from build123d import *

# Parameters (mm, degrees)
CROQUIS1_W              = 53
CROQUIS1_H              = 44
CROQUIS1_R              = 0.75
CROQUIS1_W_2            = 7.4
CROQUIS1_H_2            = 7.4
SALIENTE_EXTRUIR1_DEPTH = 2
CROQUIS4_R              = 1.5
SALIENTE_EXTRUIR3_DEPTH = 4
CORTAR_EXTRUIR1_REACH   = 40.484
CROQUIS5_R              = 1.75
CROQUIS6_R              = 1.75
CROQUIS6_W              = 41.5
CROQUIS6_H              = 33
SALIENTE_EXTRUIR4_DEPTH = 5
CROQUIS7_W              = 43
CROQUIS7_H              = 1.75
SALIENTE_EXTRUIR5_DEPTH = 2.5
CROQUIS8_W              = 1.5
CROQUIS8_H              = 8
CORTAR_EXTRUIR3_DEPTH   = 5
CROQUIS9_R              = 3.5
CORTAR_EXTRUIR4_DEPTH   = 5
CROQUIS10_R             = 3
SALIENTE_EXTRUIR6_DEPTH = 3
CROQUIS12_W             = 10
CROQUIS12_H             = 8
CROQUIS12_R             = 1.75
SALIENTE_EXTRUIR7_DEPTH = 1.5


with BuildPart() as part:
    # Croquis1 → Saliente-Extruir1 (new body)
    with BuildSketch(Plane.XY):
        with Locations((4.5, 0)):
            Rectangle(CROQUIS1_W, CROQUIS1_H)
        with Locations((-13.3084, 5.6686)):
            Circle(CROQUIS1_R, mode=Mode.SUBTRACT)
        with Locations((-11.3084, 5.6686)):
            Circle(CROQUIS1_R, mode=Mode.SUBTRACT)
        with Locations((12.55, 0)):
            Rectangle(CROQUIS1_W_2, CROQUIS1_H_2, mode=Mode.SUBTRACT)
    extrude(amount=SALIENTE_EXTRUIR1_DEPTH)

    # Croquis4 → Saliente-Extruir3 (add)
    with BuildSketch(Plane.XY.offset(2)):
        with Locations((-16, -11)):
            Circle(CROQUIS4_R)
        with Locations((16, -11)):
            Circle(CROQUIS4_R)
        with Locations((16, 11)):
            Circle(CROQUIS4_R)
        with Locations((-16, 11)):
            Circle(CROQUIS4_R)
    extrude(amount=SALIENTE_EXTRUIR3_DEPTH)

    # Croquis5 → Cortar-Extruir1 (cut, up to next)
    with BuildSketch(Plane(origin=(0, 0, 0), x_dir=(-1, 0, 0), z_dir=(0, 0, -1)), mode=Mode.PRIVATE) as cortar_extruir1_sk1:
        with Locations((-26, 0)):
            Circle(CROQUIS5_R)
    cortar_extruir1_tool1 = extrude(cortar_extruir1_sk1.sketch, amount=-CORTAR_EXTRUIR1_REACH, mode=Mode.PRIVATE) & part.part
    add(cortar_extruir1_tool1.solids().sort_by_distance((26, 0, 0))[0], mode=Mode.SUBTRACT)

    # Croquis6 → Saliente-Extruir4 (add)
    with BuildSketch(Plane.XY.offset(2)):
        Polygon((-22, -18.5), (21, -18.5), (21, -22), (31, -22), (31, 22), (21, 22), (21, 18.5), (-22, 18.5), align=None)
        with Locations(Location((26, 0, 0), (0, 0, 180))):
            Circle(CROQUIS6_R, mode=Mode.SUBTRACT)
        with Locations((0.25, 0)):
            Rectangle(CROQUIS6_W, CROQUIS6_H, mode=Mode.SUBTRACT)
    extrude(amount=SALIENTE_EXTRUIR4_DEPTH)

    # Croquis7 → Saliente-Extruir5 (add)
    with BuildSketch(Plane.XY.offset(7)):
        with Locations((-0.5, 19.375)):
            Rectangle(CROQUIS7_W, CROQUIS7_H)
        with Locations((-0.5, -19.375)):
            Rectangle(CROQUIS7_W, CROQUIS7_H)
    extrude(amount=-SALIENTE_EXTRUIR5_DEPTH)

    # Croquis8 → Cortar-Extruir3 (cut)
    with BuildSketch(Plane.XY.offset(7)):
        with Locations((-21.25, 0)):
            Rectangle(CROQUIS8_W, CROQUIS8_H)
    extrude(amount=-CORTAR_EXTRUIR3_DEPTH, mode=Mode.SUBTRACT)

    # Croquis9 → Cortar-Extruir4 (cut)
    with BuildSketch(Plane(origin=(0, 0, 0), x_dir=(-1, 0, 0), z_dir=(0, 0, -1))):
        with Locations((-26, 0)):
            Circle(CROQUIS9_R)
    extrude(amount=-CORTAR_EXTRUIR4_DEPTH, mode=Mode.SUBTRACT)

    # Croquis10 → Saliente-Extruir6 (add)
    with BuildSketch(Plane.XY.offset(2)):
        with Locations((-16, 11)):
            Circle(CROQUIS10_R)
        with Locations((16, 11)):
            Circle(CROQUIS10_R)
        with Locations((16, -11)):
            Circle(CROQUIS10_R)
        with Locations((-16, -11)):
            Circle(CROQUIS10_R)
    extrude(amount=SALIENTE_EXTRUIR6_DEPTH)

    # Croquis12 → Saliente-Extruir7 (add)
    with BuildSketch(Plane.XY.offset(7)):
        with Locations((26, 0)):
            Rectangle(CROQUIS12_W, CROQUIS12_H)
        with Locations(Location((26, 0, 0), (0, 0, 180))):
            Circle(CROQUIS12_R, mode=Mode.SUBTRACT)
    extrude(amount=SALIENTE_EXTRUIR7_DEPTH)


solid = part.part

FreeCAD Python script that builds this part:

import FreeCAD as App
import Part
import Sketcher

V = App.Vector

doc = App.newDocument("Part")
params = doc.addObject("Spreadsheet::Sheet", "Params")
for row, (alias, value) in enumerate([
    ("sketch1_diameter", "1.5 mm"),
    ("sketch1_width", "53 mm"),
    ("sketch1_height", "44 mm"),
    ("sketch1_width2", "7.4 mm"),
    ("pad1_length", "2 mm"),
    ("sketch2_diameter", "3 mm"),
    ("pad2_length", "4 mm"),
    ("sketch3_diameter", "3.5 mm"),
    ("sketch4_diameter", "3.5 mm"),
    ("sketch4_width", "43 mm"),
    ("sketch4_width2", "10 mm"),
    ("sketch4_height", "44 mm"),
    ("sketch4_height2", "37 mm"),
    ("pad3_length", "5 mm"),
    ("sketch5_width", "43 mm"),
    ("sketch5_height", "1.75 mm"),
    ("pad4_length", "2.5 mm"),
    ("sketch6_height", "8 mm"),
    ("sketch6_width", "1.5 mm"),
    ("pocket2_length", "5 mm"),
    ("sketch7_diameter", "7 mm"),
    ("pocket3_length", "5 mm"),
    ("sketch8_diameter", "6 mm"),
    ("pad5_length", "3 mm"),
    ("sketch9_diameter", "3.5 mm"),
    ("sketch9_width", "10 mm"),
    ("sketch9_height", "8 mm"),
    ("pad6_length", "1.5 mm"),
], start=1):
    params.set(f"A{row}", alias)
    params.set(f"B{row}", "=" + value)
    params.setAlias(f"B{row}", alias)

body = doc.addObject("PartDesign::Body", "Body")

sketch1 = body.newObject("Sketcher::SketchObject", "Sketch")
sketch1.AttachmentSupport = (doc.getObject("XY_Plane"), [""])
sketch1.MapMode = "FlatFace"
sketch1.addGeometry(Part.LineSegment(V(-22, 22, 0), V(-22, -22, 0)), False)
sketch1.addGeometry(Part.LineSegment(V(-22, -22, 0), V(31, -22, 0)), False)
sketch1.addGeometry(Part.LineSegment(V(31, -22, 0), V(31, 22, 0)), False)
sketch1.addGeometry(Part.LineSegment(V(31, 22, 0), V(-22, 22, 0)), False)
sketch1.addGeometry(Part.LineSegment(V(16.2, -3.7, 0), V(8.8, -3.7, 0)), False)
sketch1.addGeometry(Part.LineSegment(V(8.8, -3.7, 0), V(8.8, 3.7, 0)), False)
sketch1.addGeometry(Part.LineSegment(V(8.8, 3.7, 0), V(16.2, 3.7, 0)), False)
sketch1.addGeometry(Part.LineSegment(V(16.2, 3.7, 0), V(16.2, -3.7, 0)), False)
sketch1.addGeometry(Part.Circle(V(-13.3, 5.7, 0), V(0, 0, 1), 0.8), False)
sketch1.addGeometry(Part.Circle(V(-11.3, 5.7, 0), V(0, 0, 1), 0.8), False)
sketch1.addConstraint(Sketcher.Constraint("Coincident", 0, 2, 1, 1))
sketch1.addConstraint(Sketcher.Constraint("Coincident", 1, 2, 2, 1))
sketch1.addConstraint(Sketcher.Constraint("Coincident", 2, 2, 3, 1))
sketch1.addConstraint(Sketcher.Constraint("Coincident", 3, 2, 0, 1))
sketch1.addConstraint(Sketcher.Constraint("Coincident", 4, 2, 5, 1))
sketch1.addConstraint(Sketcher.Constraint("Coincident", 5, 2, 6, 1))
sketch1.addConstraint(Sketcher.Constraint("Coincident", 6, 2, 7, 1))
sketch1.addConstraint(Sketcher.Constraint("Coincident", 7, 2, 4, 1))
sketch1.addConstraint(Sketcher.Constraint("Vertical", 0))
sketch1.addConstraint(Sketcher.Constraint("Horizontal", 1))
sketch1.addConstraint(Sketcher.Constraint("Vertical", 2))
sketch1.addConstraint(Sketcher.Constraint("Horizontal", 3))
sketch1.addConstraint(Sketcher.Constraint("Horizontal", 4))
sketch1.addConstraint(Sketcher.Constraint("Vertical", 5))
sketch1.addConstraint(Sketcher.Constraint("Horizontal", 6))
sketch1.addConstraint(Sketcher.Constraint("Vertical", 7))
sketch1.addConstraint(Sketcher.Constraint("Equal", 8, 9))
sketch1.addConstraint(Sketcher.Constraint("Horizontal", 8, 3, 9, 3))
sketch1.addConstraint(Sketcher.Constraint("Equal", 6, 5))
sketch1.addConstraint(Sketcher.Constraint("Diameter", 8, 1.5))
sketch1.addConstraint(Sketcher.Constraint("DistanceX", 1, 1, 1, 2, 53.0))
sketch1.addConstraint(Sketcher.Constraint("DistanceY", 0, 2, 0, 1, 44.0))
sketch1.addConstraint(Sketcher.Constraint("DistanceX", 4, 2, 4, 1, 7.4))
sketch1.addConstraint(Sketcher.Constraint("DistanceX", 0, 2, -1, 1, 22.0))
sketch1.addConstraint(Sketcher.Constraint("DistanceY", 0, 2, -1, 1, 22.0))
sketch1.addConstraint(Sketcher.Constraint("DistanceX", 8, 3, 9, 3, 2.0))
sketch1.addConstraint(Sketcher.Constraint("DistanceY", 4, 2, -1, 1, 3.7))
sketch1.addConstraint(Sketcher.Constraint("DistanceX", -1, 1, 4, 2, 8.85))
sketch1.addConstraint(Sketcher.Constraint("DistanceX", 8, 3, -1, 1, 13.3084))
sketch1.addConstraint(Sketcher.Constraint("DistanceY", -1, 1, 8, 3, 5.6686))
sketch1.setExpression("Constraints[19]", "Params.sketch1_diameter")
sketch1.setExpression("Constraints[20]", "Params.sketch1_width")
sketch1.setExpression("Constraints[21]", "Params.sketch1_height")
sketch1.setExpression("Constraints[22]", "Params.sketch1_width2")
pad1 = body.newObject("PartDesign::Pad", "Pad")
pad1.Profile = sketch1
pad1.setExpression("Length", "Params.pad1_length")

sketch2 = body.newObject("Sketcher::SketchObject", "Sketch001")
sketch2.AttachmentSupport = (doc.getObject("XY_Plane"), [""])
sketch2.MapMode = "FlatFace"
sketch2.AttachmentOffset = App.Placement(V(0, 0, 2), App.Rotation())
sketch2.addGeometry(Part.Circle(V(-16, -11, 0), V(0, 0, 1), 1.5), False)
sketch2.addGeometry(Part.Circle(V(16, -11, 0), V(0, 0, 1), 1.5), False)
sketch2.addGeometry(Part.Circle(V(16, 11, 0), V(0, 0, 1), 1.5), False)
sketch2.addGeometry(Part.Circle(V(-16, 11, 0), V(0, 0, 1), 1.5), False)
sketch2.addConstraint(Sketcher.Constraint("Equal", 0, 1))
sketch2.addConstraint(Sketcher.Constraint("Equal", 1, 2))
sketch2.addConstraint(Sketcher.Constraint("Equal", 2, 3))
sketch2.addConstraint(Sketcher.Constraint("Symmetric", 0, 3, 2, 3, -1, 1))
sketch2.addConstraint(Sketcher.Constraint("Symmetric", 1, 3, 3, 3, -1, 1))
sketch2.addConstraint(Sketcher.Constraint("Symmetric", 0, 3, 1, 3, -2))
sketch2.addConstraint(Sketcher.Constraint("Diameter", 0, 3.0))
sketch2.addConstraint(Sketcher.Constraint("DistanceX", 0, 3, -1, 1, 16.0))
sketch2.addConstraint(Sketcher.Constraint("DistanceY", 0, 3, -1, 1, 11.0))
sketch2.setExpression("Constraints[6]", "Params.sketch2_diameter")
pad2 = body.newObject("PartDesign::Pad", "Pad001")
pad2.Profile = sketch2
pad2.setExpression("Length", "Params.pad2_length")

sketch3 = body.newObject("Sketcher::SketchObject", "Sketch002")
sketch3.AttachmentSupport = (doc.getObject("XY_Plane"), [""])
sketch3.MapMode = "FlatFace"
sketch3.addGeometry(Part.Circle(V(26, 0, 0), V(0, 0, 1), 1.8), False)
sketch3.addConstraint(Sketcher.Constraint("PointOnObject", 0, 3, -1))
sketch3.addConstraint(Sketcher.Constraint("Diameter", 0, 3.5))
sketch3.addConstraint(Sketcher.Constraint("DistanceX", -1, 1, 0, 3, 26.0))
sketch3.setExpression("Constraints[1]", "Params.sketch3_diameter")
pocket1 = body.newObject("PartDesign::Pocket", "Pocket")
pocket1.Profile = sketch3
pocket1.Type = "UpToFirst"
pocket1.Reversed = True

sketch4 = body.newObject("Sketcher::SketchObject", "Sketch003")
sketch4.AttachmentSupport = (doc.getObject("XY_Plane"), [""])
sketch4.MapMode = "FlatFace"
sketch4.AttachmentOffset = App.Placement(V(0, 0, 2), App.Rotation())
sketch4.addGeometry(Part.LineSegment(V(-22, -18.5, 0), V(21, -18.5, 0)), False)
sketch4.addGeometry(Part.LineSegment(V(21, -18.5, 0), V(21, -22, 0)), False)
sketch4.addGeometry(Part.LineSegment(V(21, -22, 0), V(31, -22, 0)), False)
sketch4.addGeometry(Part.LineSegment(V(31, -22, 0), V(31, 22, 0)), False)
sketch4.addGeometry(Part.LineSegment(V(31, 22, 0), V(21, 22, 0)), False)
sketch4.addGeometry(Part.LineSegment(V(21, 22, 0), V(21, 18.5, 0)), False)
sketch4.addGeometry(Part.LineSegment(V(21, 18.5, 0), V(-22, 18.5, 0)), False)
sketch4.addGeometry(Part.LineSegment(V(-22, 18.5, 0), V(-22, -18.5, 0)), False)
sketch4.addGeometry(Part.LineSegment(V(21, -16.5, 0), V(-20.5, -16.5, 0)), False)
sketch4.addGeometry(Part.LineSegment(V(-20.5, -16.5, 0), V(-20.5, 16.5, 0)), False)
sketch4.addGeometry(Part.LineSegment(V(-20.5, 16.5, 0), V(21, 16.5, 0)), False)
sketch4.addGeometry(Part.LineSegment(V(21, 16.5, 0), V(21, -16.5, 0)), False)
sketch4.addGeometry(Part.Circle(V(26, 0, 0), V(0, 0, 1), 1.8), False)
sketch4.addConstraint(Sketcher.Constraint("Coincident", 0, 2, 1, 1))
sketch4.addConstraint(Sketcher.Constraint("Coincident", 1, 2, 2, 1))
sketch4.addConstraint(Sketcher.Constraint("Coincident", 2, 2, 3, 1))
sketch4.addConstraint(Sketcher.Constraint("Coincident", 3, 2, 4, 1))
sketch4.addConstraint(Sketcher.Constraint("Coincident", 4, 2, 5, 1))
sketch4.addConstraint(Sketcher.Constraint("Coincident", 5, 2, 6, 1))
sketch4.addConstraint(Sketcher.Constraint("Coincident", 6, 2, 7, 1))
sketch4.addConstraint(Sketcher.Constraint("Coincident", 7, 2, 0, 1))
sketch4.addConstraint(Sketcher.Constraint("Coincident", 8, 2, 9, 1))
sketch4.addConstraint(Sketcher.Constraint("Coincident", 9, 2, 10, 1))
sketch4.addConstraint(Sketcher.Constraint("Coincident", 10, 2, 11, 1))
sketch4.addConstraint(Sketcher.Constraint("Coincident", 11, 2, 8, 1))
sketch4.addConstraint(Sketcher.Constraint("Horizontal", 0))
sketch4.addConstraint(Sketcher.Constraint("Vertical", 1))
sketch4.addConstraint(Sketcher.Constraint("Horizontal", 2))
sketch4.addConstraint(Sketcher.Constraint("Vertical", 3))
sketch4.addConstraint(Sketcher.Constraint("Horizontal", 4))
sketch4.addConstraint(Sketcher.Constraint("Vertical", 5))
sketch4.addConstraint(Sketcher.Constraint("Horizontal", 6))
sketch4.addConstraint(Sketcher.Constraint("Vertical", 7))
sketch4.addConstraint(Sketcher.Constraint("Horizontal", 8))
sketch4.addConstraint(Sketcher.Constraint("Vertical", 9))
sketch4.addConstraint(Sketcher.Constraint("Horizontal", 10))
sketch4.addConstraint(Sketcher.Constraint("Vertical", 11))
sketch4.addConstraint(Sketcher.Constraint("Symmetric", 1, 2, 4, 2, -1))
sketch4.addConstraint(Sketcher.Constraint("PointOnObject", 12, 3, -1))
sketch4.addConstraint(Sketcher.Constraint("Vertical", 5, 2, 10, 2))
sketch4.addConstraint(Sketcher.Constraint("Equal", 1, 5))
sketch4.addConstraint(Sketcher.Constraint("Diameter", 12, 3.5))
sketch4.addConstraint(Sketcher.Constraint("DistanceX", 0, 1, 0, 2, 43.0))
sketch4.addConstraint(Sketcher.Constraint("DistanceX", 2, 1, 2, 2, 10.0))
sketch4.addConstraint(Sketcher.Constraint("DistanceY", 3, 1, 3, 2, 44.0))
sketch4.addConstraint(Sketcher.Constraint("DistanceY", 7, 2, 7, 1, 37.0))
sketch4.addConstraint(Sketcher.Constraint("DistanceY", 9, 1, 9, 2, 33.0))
sketch4.addConstraint(Sketcher.Constraint("DistanceX", 8, 2, 8, 1, 41.5))
sketch4.addConstraint(Sketcher.Constraint("DistanceX", -1, 1, 12, 3, 26.0))
sketch4.addConstraint(Sketcher.Constraint("DistanceX", -1, 1, 0, 2, 21.0))
sketch4.addConstraint(Sketcher.Constraint("DistanceY", 7, 2, 8, 2, 2.0))
sketch4.setExpression("Constraints[28]", "Params.sketch4_diameter")
sketch4.setExpression("Constraints[29]", "Params.sketch4_width")
sketch4.setExpression("Constraints[30]", "Params.sketch4_width2")
sketch4.setExpression("Constraints[31]", "Params.sketch4_height")
sketch4.setExpression("Constraints[32]", "Params.sketch4_height2")
pad3 = body.newObject("PartDesign::Pad", "Pad002")
pad3.Profile = sketch4
pad3.setExpression("Length", "Params.pad3_length")

sketch5 = body.newObject("Sketcher::SketchObject", "Sketch004")
sketch5.AttachmentSupport = (doc.getObject("XY_Plane"), [""])
sketch5.MapMode = "FlatFace"
sketch5.AttachmentOffset = App.Placement(V(0, 0, 7), App.Rotation())
sketch5.addGeometry(Part.LineSegment(V(-22, 20.2, 0), V(-22, 18.5, 0)), False)
sketch5.addGeometry(Part.LineSegment(V(-22, 18.5, 0), V(21, 18.5, 0)), False)
sketch5.addGeometry(Part.LineSegment(V(21, 18.5, 0), V(21, 20.2, 0)), False)
sketch5.addGeometry(Part.LineSegment(V(21, 20.2, 0), V(-22, 20.2, 0)), False)
sketch5.addGeometry(Part.LineSegment(V(-22, -18.5, 0), V(-22, -20.2, 0)), False)
sketch5.addGeometry(Part.LineSegment(V(-22, -20.2, 0), V(21, -20.2, 0)), False)
sketch5.addGeometry(Part.LineSegment(V(21, -20.2, 0), V(21, -18.5, 0)), False)
sketch5.addGeometry(Part.LineSegment(V(21, -18.5, 0), V(-22, -18.5, 0)), False)
sketch5.addConstraint(Sketcher.Constraint("Coincident", 0, 2, 1, 1))
sketch5.addConstraint(Sketcher.Constraint("Coincident", 1, 2, 2, 1))
sketch5.addConstraint(Sketcher.Constraint("Coincident", 2, 2, 3, 1))
sketch5.addConstraint(Sketcher.Constraint("Coincident", 3, 2, 0, 1))
sketch5.addConstraint(Sketcher.Constraint("Coincident", 4, 2, 5, 1))
sketch5.addConstraint(Sketcher.Constraint("Coincident", 5, 2, 6, 1))
sketch5.addConstraint(Sketcher.Constraint("Coincident", 6, 2, 7, 1))
sketch5.addConstraint(Sketcher.Constraint("Coincident", 7, 2, 4, 1))
sketch5.addConstraint(Sketcher.Constraint("Vertical", 0))
sketch5.addConstraint(Sketcher.Constraint("Horizontal", 1))
sketch5.addConstraint(Sketcher.Constraint("Vertical", 2))
sketch5.addConstraint(Sketcher.Constraint("Horizontal", 3))
sketch5.addConstraint(Sketcher.Constraint("Vertical", 4))
sketch5.addConstraint(Sketcher.Constraint("Horizontal", 5))
sketch5.addConstraint(Sketcher.Constraint("Vertical", 6))
sketch5.addConstraint(Sketcher.Constraint("Horizontal", 7))
sketch5.addConstraint(Sketcher.Constraint("Symmetric", 3, 2, 4, 2, -1))
sketch5.addConstraint(Sketcher.Constraint("Symmetric", 1, 2, 6, 2, -1))
sketch5.addConstraint(Sketcher.Constraint("DistanceX", 1, 1, 1, 2, 43.0))
sketch5.addConstraint(Sketcher.Constraint("DistanceX", 0, 2, -1, 1, 22.0))
sketch5.addConstraint(Sketcher.Constraint("DistanceY", 6, 2, 1, 2, 37.0))
sketch5.addConstraint(Sketcher.Constraint("DistanceY", 0, 2, 0, 1, 1.75))
sketch5.setExpression("Constraints[18]", "Params.sketch5_width")
sketch5.setExpression("Constraints[21]", "Params.sketch5_height")
pad4 = body.newObject("PartDesign::Pad", "Pad003")
pad4.Profile = sketch5
pad4.setExpression("Length", "Params.pad4_length")
pad4.Reversed = True

sketch6 = body.newObject("Sketcher::SketchObject", "Sketch005")
sketch6.AttachmentSupport = (doc.getObject("XY_Plane"), [""])
sketch6.MapMode = "FlatFace"
sketch6.AttachmentOffset = App.Placement(V(0, 0, 7), App.Rotation())
sketch6.addGeometry(Part.LineSegment(V(-22, 4, 0), V(-22, -4, 0)), False)
sketch6.addGeometry(Part.LineSegment(V(-22, -4, 0), V(-20.5, -4, 0)), False)
sketch6.addGeometry(Part.LineSegment(V(-20.5, -4, 0), V(-20.5, 4, 0)), False)
sketch6.addGeometry(Part.LineSegment(V(-20.5, 4, 0), V(-22, 4, 0)), False)
sketch6.addConstraint(Sketcher.Constraint("Coincident", 0, 2, 1, 1))
sketch6.addConstraint(Sketcher.Constraint("Coincident", 1, 2, 2, 1))
sketch6.addConstraint(Sketcher.Constraint("Coincident", 2, 2, 3, 1))
sketch6.addConstraint(Sketcher.Constraint("Coincident", 3, 2, 0, 1))
sketch6.addConstraint(Sketcher.Constraint("Vertical", 0))
sketch6.addConstraint(Sketcher.Constraint("Horizontal", 1))
sketch6.addConstraint(Sketcher.Constraint("Vertical", 2))
sketch6.addConstraint(Sketcher.Constraint("Horizontal", 3))
sketch6.addConstraint(Sketcher.Constraint("DistanceY", 0, 2, 0, 1, 8.0))
sketch6.addConstraint(Sketcher.Constraint("DistanceX", 1, 1, 1, 2, 1.5))
sketch6.addConstraint(Sketcher.Constraint("DistanceX", 0, 2, -1, 1, 22.0))
sketch6.addConstraint(Sketcher.Constraint("DistanceY", 0, 2, -1, 1, 4.0))
sketch6.setExpression("Constraints[8]", "Params.sketch6_height")
sketch6.setExpression("Constraints[9]", "Params.sketch6_width")
pocket2 = body.newObject("PartDesign::Pocket", "Pocket001")
pocket2.Profile = sketch6
pocket2.setExpression("Length", "Params.pocket2_length")

sketch7 = body.newObject("Sketcher::SketchObject", "Sketch006")
sketch7.AttachmentSupport = (doc.getObject("XY_Plane"), [""])
sketch7.MapMode = "FlatFace"
sketch7.addGeometry(Part.Circle(V(26, 0, 0), V(0, 0, 1), 3.5), False)
sketch7.addConstraint(Sketcher.Constraint("PointOnObject", 0, 3, -1))
sketch7.addConstraint(Sketcher.Constraint("Diameter", 0, 7.0))
sketch7.addConstraint(Sketcher.Constraint("DistanceX", -1, 1, 0, 3, 26.0))
sketch7.setExpression("Constraints[1]", "Params.sketch7_diameter")
pocket3 = body.newObject("PartDesign::Pocket", "Pocket002")
pocket3.Profile = sketch7
pocket3.setExpression("Length", "Params.pocket3_length")
pocket3.Reversed = True

sketch8 = body.newObject("Sketcher::SketchObject", "Sketch007")
sketch8.AttachmentSupport = (doc.getObject("XY_Plane"), [""])
sketch8.MapMode = "FlatFace"
sketch8.AttachmentOffset = App.Placement(V(0, 0, 2), App.Rotation())
sketch8.addGeometry(Part.Circle(V(-16, 11, 0), V(0, 0, 1), 3), False)
sketch8.addGeometry(Part.Circle(V(16, 11, 0), V(0, 0, 1), 3), False)
sketch8.addGeometry(Part.Circle(V(16, -11, 0), V(0, 0, 1), 3), False)
sketch8.addGeometry(Part.Circle(V(-16, -11, 0), V(0, 0, 1), 3), False)
sketch8.addConstraint(Sketcher.Constraint("Equal", 0, 1))
sketch8.addConstraint(Sketcher.Constraint("Equal", 1, 2))
sketch8.addConstraint(Sketcher.Constraint("Equal", 2, 3))
sketch8.addConstraint(Sketcher.Constraint("Symmetric", 0, 3, 2, 3, -1, 1))
sketch8.addConstraint(Sketcher.Constraint("Symmetric", 1, 3, 3, 3, -1, 1))
sketch8.addConstraint(Sketcher.Constraint("Symmetric", 0, 3, 1, 3, -2))
sketch8.addConstraint(Sketcher.Constraint("Diameter", 0, 6.0))
sketch8.addConstraint(Sketcher.Constraint("DistanceX", 0, 3, -1, 1, 16.0))
sketch8.addConstraint(Sketcher.Constraint("DistanceY", -1, 1, 0, 3, 11.0))
sketch8.setExpression("Constraints[6]", "Params.sketch8_diameter")
pad5 = body.newObject("PartDesign::Pad", "Pad004")
pad5.Profile = sketch8
pad5.setExpression("Length", "Params.pad5_length")

sketch9 = body.newObject("Sketcher::SketchObject", "Sketch008")
sketch9.AttachmentSupport = (doc.getObject("XY_Plane"), [""])
sketch9.MapMode = "FlatFace"
sketch9.AttachmentOffset = App.Placement(V(0, 0, 7), App.Rotation())
sketch9.addGeometry(Part.LineSegment(V(21, 4, 0), V(21, -4, 0)), False)
sketch9.addGeometry(Part.LineSegment(V(21, -4, 0), V(31, -4, 0)), False)
sketch9.addGeometry(Part.LineSegment(V(31, -4, 0), V(31, 4, 0)), False)
sketch9.addGeometry(Part.LineSegment(V(31, 4, 0), V(21, 4, 0)), False)
sketch9.addGeometry(Part.Circle(V(26, 0, 0), V(0, 0, 1), 1.8), False)
sketch9.addConstraint(Sketcher.Constraint("Coincident", 0, 2, 1, 1))
sketch9.addConstraint(Sketcher.Constraint("Coincident", 1, 2, 2, 1))
sketch9.addConstraint(Sketcher.Constraint("Coincident", 2, 2, 3, 1))
sketch9.addConstraint(Sketcher.Constraint("Coincident", 3, 2, 0, 1))
sketch9.addConstraint(Sketcher.Constraint("Vertical", 0))
sketch9.addConstraint(Sketcher.Constraint("Horizontal", 1))
sketch9.addConstraint(Sketcher.Constraint("Vertical", 2))
sketch9.addConstraint(Sketcher.Constraint("Horizontal", 3))
sketch9.addConstraint(Sketcher.Constraint("PointOnObject", 4, 3, -1))
sketch9.addConstraint(Sketcher.Constraint("Diameter", 4, 3.5))
sketch9.addConstraint(Sketcher.Constraint("DistanceX", 1, 1, 1, 2, 10.0))
sketch9.addConstraint(Sketcher.Constraint("DistanceY", 0, 2, 0, 1, 8.0))
sketch9.addConstraint(Sketcher.Constraint("DistanceX", -1, 1, 4, 3, 26.0))
sketch9.addConstraint(Sketcher.Constraint("DistanceX", -1, 1, 0, 2, 21.0))
sketch9.addConstraint(Sketcher.Constraint("DistanceY", 0, 2, -1, 1, 4.0))
sketch9.setExpression("Constraints[9]", "Params.sketch9_diameter")
sketch9.setExpression("Constraints[10]", "Params.sketch9_width")
sketch9.setExpression("Constraints[11]", "Params.sketch9_height")
pad6 = body.newObject("PartDesign::Pad", "Pad005")
pad6.Profile = sketch9
pad6.setExpression("Length", "Params.pad6_length")

doc.recompute()
